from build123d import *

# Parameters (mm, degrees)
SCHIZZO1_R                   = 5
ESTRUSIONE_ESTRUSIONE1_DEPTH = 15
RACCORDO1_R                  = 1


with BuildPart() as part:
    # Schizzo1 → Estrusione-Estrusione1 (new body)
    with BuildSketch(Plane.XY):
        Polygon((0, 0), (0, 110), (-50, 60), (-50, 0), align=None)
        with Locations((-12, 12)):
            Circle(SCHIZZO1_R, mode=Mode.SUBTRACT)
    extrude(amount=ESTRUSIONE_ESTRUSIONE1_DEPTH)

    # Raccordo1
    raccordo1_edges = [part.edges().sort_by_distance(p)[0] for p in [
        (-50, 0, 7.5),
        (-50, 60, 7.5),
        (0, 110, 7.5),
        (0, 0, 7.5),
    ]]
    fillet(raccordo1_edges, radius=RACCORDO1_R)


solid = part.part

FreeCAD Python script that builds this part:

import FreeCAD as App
import Part
import Sketcher
Q = App.Units.Quantity


def edges_at(feature, points):
    """Names of the edges that pass closest to the given points."""
    edges = feature.Shape.Edges
    near = lambda p: min(range(len(edges)), key=lambda i: edges[i].distToShape(Part.Vertex(*p))[0])
    return sorted({f"Edge{near(p) + 1}" for p in points})

doc = App.newDocument("Part")
params = doc.addObject("Spreadsheet::Sheet", "Params")
for row, (alias, value) in enumerate([
    ("sketch1_diameter", "10 mm"),
    ("sketch1_width", "50 mm"),
    ("sketch1_height", "110 mm"),
    ("sketch1_height2", "60 mm"),
    ("pad1_length", "15 mm"),
    ("fillet_radius", "1 mm"),
], start=1):
    params.set(f"A{row}", alias)
    params.set(f"B{row}", "=" + value)
    params.setAlias(f"B{row}", alias)

body = doc.addObject("PartDesign::Body", "Body")

# Sketch on XY plane
sketch1 = body.newObject("Sketcher::SketchObject", "Sketch")
sketch1.AttachmentSupport = (doc.getObject("XY_Plane"), [""])
sketch1.MapMode = "FlatFace"
sketch1.addGeometry(Part.LineSegment(App.Vector(0, 0, 0), App.Vector(0, 110, 0)), False)
sketch1.addGeometry(Part.LineSegment(App.Vector(0, 110, 0), App.Vector(-50, 60, 0)), False)
sketch1.addGeometry(Part.LineSegment(App.Vector(-50, 60, 0), App.Vector(-50, 0, 0)), False)
sketch1.addGeometry(Part.LineSegment(App.Vector(-50, 0, 0), App.Vector(0, 0, 0)), False)
sketch1.addGeometry(Part.Circle(App.Vector(-12, 12, 0), App.Vector(0, 0, 1), 5), False)
sketch1.addConstraint(Sketcher.Constraint("Coincident", 0, 2, 1, 1))
sketch1.addConstraint(Sketcher.Constraint("Coincident", 1, 2, 2, 1))
sketch1.addConstraint(Sketcher.Constraint("Coincident", 2, 2, 3, 1))
sketch1.addConstraint(Sketcher.Constraint("Coincident", 3, 2, 0, 1))
sketch1.addConstraint(Sketcher.Constraint("Vertical", 0))
sketch1.addConstraint(Sketcher.Constraint("Vertical", 2))
sketch1.addConstraint(Sketcher.Constraint("Horizontal", 3))
sketch1.addConstraint(Sketcher.Constraint("Coincident", 3, 2, -1, 1))
sketch1.addConstraint(Sketcher.Constraint("Diameter", 4, Q("10 mm")))
sketch1.addConstraint(Sketcher.Constraint("DistanceX", 3, 1, 3, 2, Q("50 mm")))
sketch1.addConstraint(Sketcher.Constraint("DistanceY", 0, 1, 0, 2, Q("110 mm")))
sketch1.addConstraint(Sketcher.Constraint("DistanceY", 2, 2, 2, 1, Q("60 mm")))
sketch1.addConstraint(Sketcher.Constraint("DistanceX", 4, 3, -1, 1, Q("12 mm")))
sketch1.addConstraint(Sketcher.Constraint("DistanceY", -1, 1, 4, 3, Q("12 mm")))
sketch1.setExpression("Constraints[8]", "Params.sketch1_diameter")
sketch1.setExpression("Constraints[9]", "Params.sketch1_width")
sketch1.setExpression("Constraints[10]", "Params.sketch1_height")
sketch1.setExpression("Constraints[11]", "Params.sketch1_height2")
pad1 = body.newObject("PartDesign::Pad", "Pad")
pad1.Profile = sketch1
pad1.setExpression("Length", "Params.pad1_length")
doc.recompute()

fillet = body.newObject("PartDesign::Fillet", "Fillet")
fillet.Base = (pad1, edges_at(pad1, [
    (-50, 0, 7.5),
    (-50, 60, 7.5),
    (0, 110, 7.5),
    (0, 0, 7.5),
]))
fillet.setExpression("Radius", "Params.fillet_radius")

doc.recompute()
